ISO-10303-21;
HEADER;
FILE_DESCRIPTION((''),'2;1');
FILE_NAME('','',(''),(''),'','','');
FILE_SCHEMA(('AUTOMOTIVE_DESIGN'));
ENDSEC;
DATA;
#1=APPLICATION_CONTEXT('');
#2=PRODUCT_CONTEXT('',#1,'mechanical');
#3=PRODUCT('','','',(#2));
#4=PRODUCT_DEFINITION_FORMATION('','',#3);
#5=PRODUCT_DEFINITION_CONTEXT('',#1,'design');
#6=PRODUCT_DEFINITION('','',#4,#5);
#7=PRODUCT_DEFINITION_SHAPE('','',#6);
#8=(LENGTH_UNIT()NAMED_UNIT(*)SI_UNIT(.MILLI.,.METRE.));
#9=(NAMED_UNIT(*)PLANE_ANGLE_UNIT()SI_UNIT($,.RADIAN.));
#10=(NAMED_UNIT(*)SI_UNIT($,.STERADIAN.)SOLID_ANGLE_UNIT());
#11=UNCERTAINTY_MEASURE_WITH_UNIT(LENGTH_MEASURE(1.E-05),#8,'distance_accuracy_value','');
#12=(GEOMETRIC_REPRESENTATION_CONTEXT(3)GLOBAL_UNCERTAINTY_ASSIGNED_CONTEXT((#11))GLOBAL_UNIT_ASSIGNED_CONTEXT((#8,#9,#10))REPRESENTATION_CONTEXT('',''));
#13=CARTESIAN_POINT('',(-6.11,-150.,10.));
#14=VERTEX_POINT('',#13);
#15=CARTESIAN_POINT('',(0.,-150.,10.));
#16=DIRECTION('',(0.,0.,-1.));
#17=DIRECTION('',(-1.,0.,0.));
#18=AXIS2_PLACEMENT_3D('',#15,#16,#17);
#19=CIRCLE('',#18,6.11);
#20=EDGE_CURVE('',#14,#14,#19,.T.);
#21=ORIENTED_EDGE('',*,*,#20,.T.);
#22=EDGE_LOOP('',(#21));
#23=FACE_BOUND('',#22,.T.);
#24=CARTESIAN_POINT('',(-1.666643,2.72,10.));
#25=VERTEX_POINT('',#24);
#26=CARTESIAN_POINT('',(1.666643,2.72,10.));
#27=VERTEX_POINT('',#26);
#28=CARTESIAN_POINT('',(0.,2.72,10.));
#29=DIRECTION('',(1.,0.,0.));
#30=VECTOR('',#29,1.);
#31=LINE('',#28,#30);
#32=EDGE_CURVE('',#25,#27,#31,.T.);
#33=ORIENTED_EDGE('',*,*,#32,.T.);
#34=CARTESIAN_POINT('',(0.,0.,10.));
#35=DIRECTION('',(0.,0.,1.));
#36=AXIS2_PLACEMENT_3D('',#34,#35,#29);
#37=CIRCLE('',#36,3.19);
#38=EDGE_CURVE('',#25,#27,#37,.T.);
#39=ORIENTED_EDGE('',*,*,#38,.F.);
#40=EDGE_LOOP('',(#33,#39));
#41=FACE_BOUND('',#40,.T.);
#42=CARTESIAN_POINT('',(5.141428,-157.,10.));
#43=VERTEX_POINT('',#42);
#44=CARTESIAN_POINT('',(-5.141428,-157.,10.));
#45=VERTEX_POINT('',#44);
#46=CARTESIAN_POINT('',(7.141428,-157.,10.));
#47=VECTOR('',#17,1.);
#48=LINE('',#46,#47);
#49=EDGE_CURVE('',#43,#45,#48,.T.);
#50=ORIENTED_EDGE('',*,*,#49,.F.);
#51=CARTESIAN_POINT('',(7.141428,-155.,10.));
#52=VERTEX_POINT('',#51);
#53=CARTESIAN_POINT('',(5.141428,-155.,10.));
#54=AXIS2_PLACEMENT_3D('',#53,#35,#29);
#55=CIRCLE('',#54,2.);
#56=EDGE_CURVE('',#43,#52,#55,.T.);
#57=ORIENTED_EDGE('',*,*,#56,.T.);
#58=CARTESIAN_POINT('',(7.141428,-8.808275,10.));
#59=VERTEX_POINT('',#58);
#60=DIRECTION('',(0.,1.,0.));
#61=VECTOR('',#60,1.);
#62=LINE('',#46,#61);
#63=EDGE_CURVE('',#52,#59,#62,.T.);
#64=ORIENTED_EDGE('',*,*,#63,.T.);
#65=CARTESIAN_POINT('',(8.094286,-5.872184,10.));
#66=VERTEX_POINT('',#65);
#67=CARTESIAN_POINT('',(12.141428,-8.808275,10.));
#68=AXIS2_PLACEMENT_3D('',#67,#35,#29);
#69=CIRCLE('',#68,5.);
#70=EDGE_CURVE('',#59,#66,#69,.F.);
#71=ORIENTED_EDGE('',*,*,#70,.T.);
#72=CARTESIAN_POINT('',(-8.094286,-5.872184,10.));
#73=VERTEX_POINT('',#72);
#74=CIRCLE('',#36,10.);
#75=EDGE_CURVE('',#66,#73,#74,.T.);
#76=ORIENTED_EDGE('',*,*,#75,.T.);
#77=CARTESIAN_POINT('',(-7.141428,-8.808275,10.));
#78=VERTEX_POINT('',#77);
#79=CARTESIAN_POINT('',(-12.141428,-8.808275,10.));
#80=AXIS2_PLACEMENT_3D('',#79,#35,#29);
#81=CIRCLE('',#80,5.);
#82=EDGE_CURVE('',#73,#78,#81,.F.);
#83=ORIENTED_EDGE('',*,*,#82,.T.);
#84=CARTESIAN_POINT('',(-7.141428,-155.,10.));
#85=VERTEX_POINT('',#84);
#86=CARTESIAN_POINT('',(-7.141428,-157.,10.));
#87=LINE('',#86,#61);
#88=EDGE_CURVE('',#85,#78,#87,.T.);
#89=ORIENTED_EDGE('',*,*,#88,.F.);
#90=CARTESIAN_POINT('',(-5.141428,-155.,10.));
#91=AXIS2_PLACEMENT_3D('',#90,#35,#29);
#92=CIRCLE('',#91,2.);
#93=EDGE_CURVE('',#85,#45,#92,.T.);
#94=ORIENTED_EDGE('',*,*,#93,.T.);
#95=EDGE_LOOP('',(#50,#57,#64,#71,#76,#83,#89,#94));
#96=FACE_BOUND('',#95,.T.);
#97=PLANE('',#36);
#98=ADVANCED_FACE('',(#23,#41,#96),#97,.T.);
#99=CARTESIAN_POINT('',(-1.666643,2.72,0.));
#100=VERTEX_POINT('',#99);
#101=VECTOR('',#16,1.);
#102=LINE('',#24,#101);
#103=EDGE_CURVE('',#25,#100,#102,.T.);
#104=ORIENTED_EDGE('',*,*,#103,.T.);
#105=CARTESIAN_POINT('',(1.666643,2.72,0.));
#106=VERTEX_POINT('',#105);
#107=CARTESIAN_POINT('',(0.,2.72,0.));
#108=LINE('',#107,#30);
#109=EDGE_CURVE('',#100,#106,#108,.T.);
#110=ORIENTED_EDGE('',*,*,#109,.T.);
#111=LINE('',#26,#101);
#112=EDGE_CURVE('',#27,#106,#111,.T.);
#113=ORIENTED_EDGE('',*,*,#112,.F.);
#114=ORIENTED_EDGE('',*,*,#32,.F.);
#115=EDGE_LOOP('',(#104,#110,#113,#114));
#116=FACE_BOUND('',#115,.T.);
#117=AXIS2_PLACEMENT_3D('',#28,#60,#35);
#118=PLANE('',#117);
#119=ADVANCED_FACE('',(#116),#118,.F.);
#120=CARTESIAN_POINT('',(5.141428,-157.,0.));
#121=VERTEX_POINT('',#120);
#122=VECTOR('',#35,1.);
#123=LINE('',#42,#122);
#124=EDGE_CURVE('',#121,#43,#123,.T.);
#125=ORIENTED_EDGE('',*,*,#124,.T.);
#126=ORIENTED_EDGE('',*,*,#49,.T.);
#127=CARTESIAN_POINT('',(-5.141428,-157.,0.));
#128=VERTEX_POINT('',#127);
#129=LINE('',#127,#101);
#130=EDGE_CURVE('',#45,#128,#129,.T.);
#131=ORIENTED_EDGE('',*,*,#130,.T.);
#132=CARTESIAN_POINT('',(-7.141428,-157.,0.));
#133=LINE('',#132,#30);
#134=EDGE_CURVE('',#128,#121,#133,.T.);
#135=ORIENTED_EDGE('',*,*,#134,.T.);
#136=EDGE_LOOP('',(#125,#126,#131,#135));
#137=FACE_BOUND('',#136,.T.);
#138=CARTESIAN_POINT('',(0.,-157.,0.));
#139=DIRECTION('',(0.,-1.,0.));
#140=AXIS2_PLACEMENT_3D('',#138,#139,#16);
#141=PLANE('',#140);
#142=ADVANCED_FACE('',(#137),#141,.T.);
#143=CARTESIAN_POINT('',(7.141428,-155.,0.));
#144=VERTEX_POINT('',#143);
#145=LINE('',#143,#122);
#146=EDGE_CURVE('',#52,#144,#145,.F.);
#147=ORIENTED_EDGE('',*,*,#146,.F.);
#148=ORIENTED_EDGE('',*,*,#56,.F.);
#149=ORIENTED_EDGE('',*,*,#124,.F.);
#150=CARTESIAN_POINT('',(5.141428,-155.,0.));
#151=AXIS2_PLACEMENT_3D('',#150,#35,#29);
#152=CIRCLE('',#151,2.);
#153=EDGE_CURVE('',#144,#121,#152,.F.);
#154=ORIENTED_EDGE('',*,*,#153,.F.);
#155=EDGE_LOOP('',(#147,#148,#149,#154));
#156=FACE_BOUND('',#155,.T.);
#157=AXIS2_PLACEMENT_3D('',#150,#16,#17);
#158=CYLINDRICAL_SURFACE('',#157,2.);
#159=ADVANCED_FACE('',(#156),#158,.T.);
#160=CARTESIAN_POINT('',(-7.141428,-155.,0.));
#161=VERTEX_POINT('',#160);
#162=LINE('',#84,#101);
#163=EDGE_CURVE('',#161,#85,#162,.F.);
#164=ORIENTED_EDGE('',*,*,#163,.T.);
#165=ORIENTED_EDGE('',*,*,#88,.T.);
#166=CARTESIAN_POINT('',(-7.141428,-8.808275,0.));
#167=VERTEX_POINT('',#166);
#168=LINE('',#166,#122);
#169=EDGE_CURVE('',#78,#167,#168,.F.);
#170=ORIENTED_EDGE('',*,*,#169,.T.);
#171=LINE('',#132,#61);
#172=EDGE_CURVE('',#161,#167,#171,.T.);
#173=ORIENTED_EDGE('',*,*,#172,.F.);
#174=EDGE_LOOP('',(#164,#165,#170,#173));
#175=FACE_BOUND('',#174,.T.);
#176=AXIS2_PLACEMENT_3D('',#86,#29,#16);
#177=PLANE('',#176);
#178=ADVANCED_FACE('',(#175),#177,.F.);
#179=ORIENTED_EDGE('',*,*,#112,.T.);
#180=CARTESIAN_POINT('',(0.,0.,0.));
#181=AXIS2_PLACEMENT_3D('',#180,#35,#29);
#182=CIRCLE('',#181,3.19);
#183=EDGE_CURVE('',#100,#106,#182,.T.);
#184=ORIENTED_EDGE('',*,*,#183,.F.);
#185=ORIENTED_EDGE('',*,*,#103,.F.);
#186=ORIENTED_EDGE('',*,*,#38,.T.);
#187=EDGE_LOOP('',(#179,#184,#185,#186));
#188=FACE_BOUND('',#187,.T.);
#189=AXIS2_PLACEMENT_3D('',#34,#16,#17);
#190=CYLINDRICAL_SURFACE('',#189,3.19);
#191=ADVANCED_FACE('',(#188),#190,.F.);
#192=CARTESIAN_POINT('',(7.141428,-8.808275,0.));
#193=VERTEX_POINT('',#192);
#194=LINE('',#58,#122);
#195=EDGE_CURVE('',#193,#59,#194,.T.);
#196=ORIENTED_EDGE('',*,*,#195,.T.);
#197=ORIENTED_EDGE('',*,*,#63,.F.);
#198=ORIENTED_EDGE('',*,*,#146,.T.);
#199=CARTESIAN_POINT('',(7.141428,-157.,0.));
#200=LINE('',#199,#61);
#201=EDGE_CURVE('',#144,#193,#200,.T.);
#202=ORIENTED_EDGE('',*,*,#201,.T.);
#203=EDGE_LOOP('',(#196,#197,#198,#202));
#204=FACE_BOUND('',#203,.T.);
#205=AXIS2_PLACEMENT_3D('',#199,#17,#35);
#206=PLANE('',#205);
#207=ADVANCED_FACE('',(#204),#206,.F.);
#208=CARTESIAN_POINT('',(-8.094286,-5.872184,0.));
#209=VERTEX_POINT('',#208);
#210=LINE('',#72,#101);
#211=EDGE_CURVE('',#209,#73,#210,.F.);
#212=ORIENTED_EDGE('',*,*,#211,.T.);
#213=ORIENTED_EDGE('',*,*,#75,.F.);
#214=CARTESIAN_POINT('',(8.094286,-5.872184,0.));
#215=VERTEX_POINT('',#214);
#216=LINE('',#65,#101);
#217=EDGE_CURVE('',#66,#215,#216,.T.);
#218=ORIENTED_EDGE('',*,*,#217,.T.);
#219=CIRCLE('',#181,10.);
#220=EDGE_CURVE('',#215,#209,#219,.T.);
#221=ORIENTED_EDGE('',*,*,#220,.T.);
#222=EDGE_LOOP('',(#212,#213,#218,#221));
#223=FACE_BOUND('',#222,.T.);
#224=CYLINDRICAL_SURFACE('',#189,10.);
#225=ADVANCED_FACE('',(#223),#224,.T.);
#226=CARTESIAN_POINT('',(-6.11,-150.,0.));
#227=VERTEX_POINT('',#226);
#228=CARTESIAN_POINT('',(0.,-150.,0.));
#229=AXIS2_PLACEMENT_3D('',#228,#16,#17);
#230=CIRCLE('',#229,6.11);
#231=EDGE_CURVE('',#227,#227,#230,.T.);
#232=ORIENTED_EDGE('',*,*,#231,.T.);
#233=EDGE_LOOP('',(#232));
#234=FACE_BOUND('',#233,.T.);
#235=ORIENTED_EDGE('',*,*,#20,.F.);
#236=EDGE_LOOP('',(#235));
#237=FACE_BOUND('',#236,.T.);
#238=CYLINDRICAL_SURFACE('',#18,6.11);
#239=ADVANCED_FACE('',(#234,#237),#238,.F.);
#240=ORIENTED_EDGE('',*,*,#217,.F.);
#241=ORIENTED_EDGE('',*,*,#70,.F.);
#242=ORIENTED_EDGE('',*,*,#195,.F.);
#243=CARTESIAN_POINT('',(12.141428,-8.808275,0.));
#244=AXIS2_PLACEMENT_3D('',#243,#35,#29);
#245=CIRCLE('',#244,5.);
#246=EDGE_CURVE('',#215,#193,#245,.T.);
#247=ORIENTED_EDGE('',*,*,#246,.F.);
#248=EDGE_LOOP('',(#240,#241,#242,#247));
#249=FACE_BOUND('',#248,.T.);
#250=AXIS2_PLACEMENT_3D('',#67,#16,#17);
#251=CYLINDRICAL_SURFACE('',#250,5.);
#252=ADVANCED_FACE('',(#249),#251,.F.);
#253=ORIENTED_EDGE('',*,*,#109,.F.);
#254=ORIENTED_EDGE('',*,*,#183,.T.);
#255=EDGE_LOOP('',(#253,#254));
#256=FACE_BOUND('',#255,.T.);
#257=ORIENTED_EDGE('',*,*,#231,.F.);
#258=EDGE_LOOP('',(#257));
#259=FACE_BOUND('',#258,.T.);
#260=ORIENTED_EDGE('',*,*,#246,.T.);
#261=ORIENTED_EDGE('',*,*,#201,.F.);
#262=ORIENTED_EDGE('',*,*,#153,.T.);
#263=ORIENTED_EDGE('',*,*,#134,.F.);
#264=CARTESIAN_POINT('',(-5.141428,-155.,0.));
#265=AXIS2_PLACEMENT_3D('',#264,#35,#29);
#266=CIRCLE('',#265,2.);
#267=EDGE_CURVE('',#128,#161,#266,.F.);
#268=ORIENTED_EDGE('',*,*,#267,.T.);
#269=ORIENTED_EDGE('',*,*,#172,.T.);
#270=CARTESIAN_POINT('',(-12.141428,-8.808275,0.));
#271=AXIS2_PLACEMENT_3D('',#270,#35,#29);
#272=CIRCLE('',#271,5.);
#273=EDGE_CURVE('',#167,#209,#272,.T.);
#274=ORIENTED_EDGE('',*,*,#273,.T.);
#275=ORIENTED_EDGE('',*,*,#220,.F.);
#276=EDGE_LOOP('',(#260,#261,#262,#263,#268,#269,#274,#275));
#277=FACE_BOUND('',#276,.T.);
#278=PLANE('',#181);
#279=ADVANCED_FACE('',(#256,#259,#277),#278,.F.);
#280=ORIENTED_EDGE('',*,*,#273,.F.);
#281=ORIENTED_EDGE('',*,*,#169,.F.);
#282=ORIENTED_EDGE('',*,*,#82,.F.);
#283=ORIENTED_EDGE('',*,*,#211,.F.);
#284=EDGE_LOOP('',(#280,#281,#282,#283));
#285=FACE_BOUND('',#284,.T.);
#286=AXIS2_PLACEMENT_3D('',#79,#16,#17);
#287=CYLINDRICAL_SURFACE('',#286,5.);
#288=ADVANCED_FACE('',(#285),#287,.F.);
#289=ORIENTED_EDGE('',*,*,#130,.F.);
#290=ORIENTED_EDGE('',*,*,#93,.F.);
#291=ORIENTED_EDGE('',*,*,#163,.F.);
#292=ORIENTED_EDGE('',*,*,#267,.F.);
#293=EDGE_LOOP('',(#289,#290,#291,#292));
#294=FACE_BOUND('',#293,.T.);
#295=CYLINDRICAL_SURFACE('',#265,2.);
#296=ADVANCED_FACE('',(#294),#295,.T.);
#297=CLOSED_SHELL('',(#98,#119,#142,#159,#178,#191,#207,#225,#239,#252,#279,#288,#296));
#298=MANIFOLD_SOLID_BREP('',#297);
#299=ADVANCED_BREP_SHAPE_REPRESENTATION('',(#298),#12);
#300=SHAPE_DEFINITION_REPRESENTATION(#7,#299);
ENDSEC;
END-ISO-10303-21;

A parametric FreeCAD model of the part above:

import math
import FreeCAD as App
import Part
import Sketcher
Q = App.Units.Quantity


def edges_at(feature, points):
    """Names of the edges that pass closest to the given points."""
    edges = feature.Shape.Edges
    near = lambda p: min(range(len(edges)), key=lambda i: edges[i].distToShape(Part.Vertex(*p))[0])
    return sorted({f"Edge{near(p) + 1}" for p in points})

doc = App.newDocument("Part")
body = doc.addObject("PartDesign::Body", "Body")

sketch1 = body.newObject("Sketcher::SketchObject", "Sketch")
sketch1.AttachmentSupport = (doc.getObject("XY_Plane"), [""])
sketch1.MapMode = "FlatFace"
sketch1.addGeometry([
    Part.Circle(App.Vector(0, 0, 0), App.Vector(0, 0, 1), 10),
    Part.ArcOfCircle(Part.Circle(App.Vector(0, 0, 0), App.Vector(0, 0, 1), 3.19), math.radians(121.497323), math.radians(418.502677)),
    Part.LineSegment(App.Vector(-1.666643, 2.72, 0), App.Vector(1.666643, 2.72, 0)),
], False)
sketch1.addConstraint([
    Sketcher.Constraint("Coincident", 1, 1, 2, 1),
    Sketcher.Constraint("Coincident", 2, 2, 1, 2),
    Sketcher.Constraint("Horizontal", 2),
    Sketcher.Constraint("Coincident", 0, 3, -1, 1),
    Sketcher.Constraint("Coincident", 1, 3, -1, 1),
    Sketcher.Constraint("Diameter", 0, Q("20 mm")),
    Sketcher.Constraint("Radius", 1, Q("3.19 mm")),
    Sketcher.Constraint("DistanceY", -1, 1, 1, 1, Q("2.72 mm")),
])
pad1 = body.newObject("PartDesign::Pad", "Pad")
pad1.Profile = sketch1
pad1.Length = 10

sketch2 = body.newObject("Sketcher::SketchObject", "Sketch001")
sketch2.AttachmentSupport = (doc.getObject("XY_Plane"), [""])
sketch2.MapMode = "FlatFace"
sketch2.addGeometry([
    Part.LineSegment(App.Vector(-7.141428, -7, 0), App.Vector(7.141428, -7, 0)),
    Part.ArcOfCircle(Part.Circle(App.Vector(0, 0, 0), App.Vector(0, 0, 1), 10), math.radians(-90), math.radians(-44.427004)),
    Part.ArcOfCircle(Part.Circle(App.Vector(0, 0, 0), App.Vector(0, 0, 1), 10), math.radians(-135.572996), math.radians(-90)),
], False)
sketch2.addConstraint([
    Sketcher.Constraint("Coincident", 0, 2, 1, 2),
    Sketcher.Constraint("Tangent", 1, 1, 2, 2),
    Sketcher.Constraint("Coincident", 2, 1, 0, 1),
    Sketcher.Constraint("Horizontal", 0),
    Sketcher.Constraint("Coincident", 1, 3, -1, 1),
    Sketcher.Constraint("Equal", 1, 2),
    Sketcher.Constraint("PointOnObject", 1, 1, -2),
    Sketcher.Constraint("Radius", 1, Q("10 mm")),
    Sketcher.Constraint("DistanceY", 0, 2, -1, 1, Q("7 mm")),
])
pocket1 = body.newObject("PartDesign::Pocket", "Pocket")
pocket1.Profile = sketch2
pocket1.Length = 10
pocket1.Reversed = True

sketch3 = body.newObject("Sketcher::SketchObject", "Sketch002")
sketch3.AttachmentSupport = (doc.getObject("XZ_Plane"), [""])
sketch3.MapMode = "FlatFace"
sketch3.AttachmentOffset = App.Placement(App.Vector(0, 0, 7), App.Rotation())
sketch3.addGeometry([
    Part.LineSegment(App.Vector(-7.141428, 10, 0), App.Vector(-7.141428, 0, 0)),
    Part.LineSegment(App.Vector(-7.141428, 0, 0), App.Vector(7.141428, 0, 0)),
    Part.LineSegment(App.Vector(7.141428, 0, 0), App.Vector(7.141428, 10, 0)),
    Part.LineSegment(App.Vector(7.141428, 10, 0), App.Vector(-7.141428, 10, 0)),
], False)
sketch3.addConstraint([
    Sketcher.Constraint("Coincident", 0, 2, 1, 1),
    Sketcher.Constraint("Coincident", 1, 2, 2, 1),
    Sketcher.Constraint("Coincident", 2, 2, 3, 1),
    Sketcher.Constraint("Coincident", 3, 2, 0, 1),
    Sketcher.Constraint("Vertical", 0),
    Sketcher.Constraint("Horizontal", 1),
    Sketcher.Constraint("Vertical", 2),
    Sketcher.Constraint("Horizontal", 3),
    Sketcher.Constraint("Symmetric", 0, 2, 1, 2, -1, 1),
    Sketcher.Constraint("DistanceY", 0, 2, 0, 1, Q("10 mm")),
    Sketcher.Constraint("DistanceX", 1, 1, 1, 2, Q("14.282857 mm")),
])
pad2 = body.newObject("PartDesign::Pad", "Pad001")
pad2.Profile = sketch3
pad2.Length = 150

sketch4 = body.newObject("Sketcher::SketchObject", "Sketch003")
sketch4.AttachmentSupport = (doc.getObject("XY_Plane"), [""])
sketch4.MapMode = "FlatFace"
sketch4.addGeometry(Part.Circle(App.Vector(0, -150, 0), App.Vector(0, 0, 1), 6.11), False)
sketch4.addConstraint([
    Sketcher.Constraint("PointOnObject", 0, 3, -2),
    Sketcher.Constraint("Diameter", 0, Q("12.22 mm")),
    Sketcher.Constraint("DistanceY", 0, 3, -1, 1, Q("150 mm")),
])
pocket2 = body.newObject("PartDesign::Pocket", "Pocket001")
pocket2.Profile = sketch4
pocket2.Length = 10
pocket2.Reversed = True
doc.recompute()

fillet = body.newObject("PartDesign::Fillet", "Fillet")
fillet.Base = (pocket2, edges_at(pocket2, [(7.141, -7, 5), (-7.141, -7, 5)]))
fillet.Radius = 5
doc.recompute()

fillet2 = body.newObject("PartDesign::Fillet", "Fillet001")
fillet2.Base = (fillet, edges_at(fillet, [(-7.141, -157, 5), (7.141, -157, 5)]))
fillet2.Radius = 2

doc.recompute()
